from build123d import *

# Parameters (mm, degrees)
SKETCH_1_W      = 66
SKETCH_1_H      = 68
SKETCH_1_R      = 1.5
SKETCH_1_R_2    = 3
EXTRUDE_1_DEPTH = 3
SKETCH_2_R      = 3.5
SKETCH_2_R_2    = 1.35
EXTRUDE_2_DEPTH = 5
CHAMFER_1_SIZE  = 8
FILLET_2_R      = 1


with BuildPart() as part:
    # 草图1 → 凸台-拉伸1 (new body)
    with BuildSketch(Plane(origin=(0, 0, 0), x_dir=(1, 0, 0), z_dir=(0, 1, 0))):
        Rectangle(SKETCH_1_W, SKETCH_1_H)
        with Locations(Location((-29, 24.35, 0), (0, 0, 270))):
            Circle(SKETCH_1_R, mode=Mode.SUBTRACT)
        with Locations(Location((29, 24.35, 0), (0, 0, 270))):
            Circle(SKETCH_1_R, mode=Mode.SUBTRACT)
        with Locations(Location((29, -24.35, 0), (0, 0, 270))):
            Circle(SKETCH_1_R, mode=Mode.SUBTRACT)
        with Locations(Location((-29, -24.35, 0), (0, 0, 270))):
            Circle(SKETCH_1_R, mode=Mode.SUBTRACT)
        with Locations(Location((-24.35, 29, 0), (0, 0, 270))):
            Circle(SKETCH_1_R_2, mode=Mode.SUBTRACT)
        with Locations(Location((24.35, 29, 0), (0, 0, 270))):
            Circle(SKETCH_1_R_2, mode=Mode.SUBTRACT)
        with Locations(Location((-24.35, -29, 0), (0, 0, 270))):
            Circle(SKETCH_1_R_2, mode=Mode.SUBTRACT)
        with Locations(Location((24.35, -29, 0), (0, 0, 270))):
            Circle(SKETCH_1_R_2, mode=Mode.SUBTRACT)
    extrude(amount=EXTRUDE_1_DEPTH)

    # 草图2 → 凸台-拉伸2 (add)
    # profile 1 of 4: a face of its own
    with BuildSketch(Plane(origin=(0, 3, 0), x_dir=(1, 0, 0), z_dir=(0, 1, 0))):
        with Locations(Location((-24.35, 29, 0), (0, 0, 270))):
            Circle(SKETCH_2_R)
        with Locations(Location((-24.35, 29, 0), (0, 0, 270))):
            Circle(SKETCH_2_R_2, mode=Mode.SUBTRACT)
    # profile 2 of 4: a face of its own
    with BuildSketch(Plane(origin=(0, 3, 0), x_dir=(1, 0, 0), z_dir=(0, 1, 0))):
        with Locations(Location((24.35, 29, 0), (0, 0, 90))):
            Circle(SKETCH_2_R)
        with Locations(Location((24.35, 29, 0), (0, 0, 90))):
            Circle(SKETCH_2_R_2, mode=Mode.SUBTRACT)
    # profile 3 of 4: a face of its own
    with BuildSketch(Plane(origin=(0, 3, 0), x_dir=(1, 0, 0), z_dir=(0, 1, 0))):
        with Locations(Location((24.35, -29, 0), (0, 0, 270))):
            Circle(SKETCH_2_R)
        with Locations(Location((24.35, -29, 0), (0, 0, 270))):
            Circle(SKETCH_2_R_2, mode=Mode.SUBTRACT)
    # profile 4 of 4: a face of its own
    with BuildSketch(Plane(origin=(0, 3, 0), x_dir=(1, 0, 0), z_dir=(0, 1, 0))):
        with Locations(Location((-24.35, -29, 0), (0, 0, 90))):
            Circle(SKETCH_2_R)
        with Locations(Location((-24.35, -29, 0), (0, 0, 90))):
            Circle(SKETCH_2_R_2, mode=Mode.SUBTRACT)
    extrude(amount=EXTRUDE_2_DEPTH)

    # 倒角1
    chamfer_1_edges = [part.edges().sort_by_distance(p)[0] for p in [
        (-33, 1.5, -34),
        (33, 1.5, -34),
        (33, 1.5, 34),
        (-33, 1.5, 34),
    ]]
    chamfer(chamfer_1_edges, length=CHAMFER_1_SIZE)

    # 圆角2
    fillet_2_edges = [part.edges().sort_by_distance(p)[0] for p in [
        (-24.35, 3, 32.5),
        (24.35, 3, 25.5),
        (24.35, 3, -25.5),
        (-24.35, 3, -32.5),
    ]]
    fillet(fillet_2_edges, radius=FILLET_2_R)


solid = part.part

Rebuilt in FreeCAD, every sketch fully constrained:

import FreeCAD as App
import Part
import Sketcher
from FreeCAD import Vector


def edges_at(feature, points):
    """Names of the edges that pass closest to the given points."""
    edges = feature.Shape.Edges
    near = lambda p: min(range(len(edges)), key=lambda i: edges[i].distToShape(Part.Vertex(*p))[0])
    return sorted({f"Edge{near(p) + 1}" for p in points})

doc = App.newDocument("Part")
body = doc.addObject("PartDesign::Body", "Body")

sketch1 = body.newObject("Sketcher::SketchObject", "Sketch")
sketch1.AttachmentSupport = (doc.getObject("XZ_Plane"), [""])
sketch1.MapMode = "FlatFace"
sketch1.addGeometry(Part.LineSegment(Vector(-33, -34, 0), Vector(-33, 34, 0)), False)
sketch1.addGeometry(Part.LineSegment(Vector(-33, 34, 0), Vector(33, 34, 0)), False)
sketch1.addGeometry(Part.LineSegment(Vector(33, 34, 0), Vector(33, -34, 0)), False)
sketch1.addGeometry(Part.LineSegment(Vector(33, -34, 0), Vector(-33, -34, 0)), False)
sketch1.addGeometry(Part.Circle(Vector(-24.4, 29, 0), Vector(0, 0, 1), 3), False)
sketch1.addGeometry(Part.Circle(Vector(-29, 24.4, 0), Vector(0, 0, 1), 1.5), False)
sketch1.addGeometry(Part.Circle(Vector(24.4, 29, 0), Vector(0, 0, 1), 3), False)
sketch1.addGeometry(Part.Circle(Vector(29, 24.4, 0), Vector(0, 0, 1), 1.5), False)
sketch1.addGeometry(Part.Circle(Vector(-29, -24.4, 0), Vector(0, 0, 1), 1.5), False)
sketch1.addGeometry(Part.Circle(Vector(-24.4, -29, 0), Vector(0, 0, 1), 3), False)
sketch1.addGeometry(Part.Circle(Vector(29, -24.4, 0), Vector(0, 0, 1), 1.5), False)
sketch1.addGeometry(Part.Circle(Vector(24.4, -29, 0), Vector(0, 0, 1), 3), False)
sketch1.addConstraint(Sketcher.Constraint("Coincident", 0, 2, 1, 1))
sketch1.addConstraint(Sketcher.Constraint("Coincident", 1, 2, 2, 1))
sketch1.addConstraint(Sketcher.Constraint("Coincident", 2, 2, 3, 1))
sketch1.addConstraint(Sketcher.Constraint("Coincident", 3, 2, 0, 1))
sketch1.addConstraint(Sketcher.Constraint("Vertical", 0))
sketch1.addConstraint(Sketcher.Constraint("Horizontal", 1))
sketch1.addConstraint(Sketcher.Constraint("Vertical", 2))
sketch1.addConstraint(Sketcher.Constraint("Horizontal", 3))
sketch1.addConstraint(Sketcher.Constraint("Equal", 4, 6))
sketch1.addConstraint(Sketcher.Constraint("Equal", 5, 7))
sketch1.addConstraint(Sketcher.Constraint("Equal", 7, 8))
sketch1.addConstraint(Sketcher.Constraint("Equal", 6, 9))
sketch1.addConstraint(Sketcher.Constraint("Equal", 8, 10))
sketch1.addConstraint(Sketcher.Constraint("Equal", 9, 11))
sketch1.addConstraint(Sketcher.Constraint("Symmetric", 7, 3, 8, 3, -1, 1))
sketch1.addConstraint(Sketcher.Constraint("Symmetric", 6, 3, 9, 3, -1, 1))
sketch1.addConstraint(Sketcher.Constraint("Symmetric", 5, 3, 10, 3, -1, 1))
sketch1.addConstraint(Sketcher.Constraint("Symmetric", 4, 3, 11, 3, -1, 1))
sketch1.addConstraint(Sketcher.Constraint("Symmetric", 0, 2, 2, 2, -1, 1))
sketch1.addConstraint(Sketcher.Constraint("Symmetric", 4, 3, 6, 3, -2))
sketch1.addConstraint(Sketcher.Constraint("Symmetric", 5, 3, 7, 3, -2))
sketch1.addConstraint(Sketcher.Constraint("Diameter", 4, 6.0))
sketch1.addConstraint(Sketcher.Constraint("Diameter", 5, 3.0))
sketch1.addConstraint(Sketcher.Constraint("DistanceX", 1, 1, 1, 2, 66.0))
sketch1.addConstraint(Sketcher.Constraint("DistanceY", 0, 1, 0, 2, 68.0))
sketch1.addConstraint(Sketcher.Constraint("DistanceY", -1, 1, 4, 3, 29.0))
sketch1.addConstraint(Sketcher.Constraint("DistanceX", 5, 3, -1, 1, 29.0))
sketch1.addConstraint(Sketcher.Constraint("DistanceX", 4, 3, 6, 3, 48.7))
sketch1.addConstraint(Sketcher.Constraint("DistanceY", 8, 3, 5, 3, 48.7))
pad1 = body.newObject("PartDesign::Pad", "Pad")
pad1.Profile = sketch1
pad1.Length = 3
pad1.Reversed = True

sketch2 = body.newObject("Sketcher::SketchObject", "Sketch001")
sketch2.AttachmentSupport = (doc.getObject("XZ_Plane"), [""])
sketch2.MapMode = "FlatFace"
sketch2.AttachmentOffset = App.Placement(Vector(0, 0, -3), App.Rotation())
sketch2.addGeometry(Part.Circle(Vector(-24.4, -29, 0), Vector(0, 0, 1), 3.5), False)
sketch2.addGeometry(Part.Circle(Vector(-24.4, -29, 0), Vector(0, 0, 1), 1.4), False)
sketch2.addGeometry(Part.Circle(Vector(24.4, -29, 0), Vector(0, 0, 1), 3.5), False)
sketch2.addGeometry(Part.Circle(Vector(24.4, -29, 0), Vector(0, 0, 1), 1.4), False)
sketch2.addGeometry(Part.Circle(Vector(24.4, 29, 0), Vector(0, 0, 1), 3.5), False)
sketch2.addGeometry(Part.Circle(Vector(24.4, 29, 0), Vector(0, 0, 1), 1.4), False)
sketch2.addGeometry(Part.Circle(Vector(-24.4, 29, 0), Vector(0, 0, 1), 3.5), False)
sketch2.addGeometry(Part.Circle(Vector(-24.4, 29, 0), Vector(0, 0, 1), 1.4), False)
sketch2.addConstraint(Sketcher.Constraint("Coincident", 1, 3, 0, 3))
sketch2.addConstraint(Sketcher.Constraint("Coincident", 3, 3, 2, 3))
sketch2.addConstraint(Sketcher.Constraint("Coincident", 5, 3, 4, 3))
sketch2.addConstraint(Sketcher.Constraint("Coincident", 7, 3, 6, 3))
sketch2.addConstraint(Sketcher.Constraint("Equal", 0, 2))
sketch2.addConstraint(Sketcher.Constraint("Equal", 1, 3))
sketch2.addConstraint(Sketcher.Constraint("Equal", 2, 4))
sketch2.addConstraint(Sketcher.Constraint("Equal", 3, 5))
sketch2.addConstraint(Sketcher.Constraint("Equal", 4, 6))
sketch2.addConstraint(Sketcher.Constraint("Equal", 5, 7))
sketch2.addConstraint(Sketcher.Constraint("Symmetric", 0, 3, 4, 3, -1, 1))
sketch2.addConstraint(Sketcher.Constraint("Symmetric", 2, 3, 6, 3, -1, 1))
sketch2.addConstraint(Sketcher.Constraint("Symmetric", 0, 3, 2, 3, -2))
sketch2.addConstraint(Sketcher.Constraint("Diameter", 0, 7.0))
sketch2.addConstraint(Sketcher.Constraint("Diameter", 1, 2.7))
sketch2.addConstraint(Sketcher.Constraint("DistanceY", 0, 3, -1, 1, 29.0))
sketch2.addConstraint(Sketcher.Constraint("DistanceX", 0, 3, 2, 3, 48.7))
pad2 = body.newObject("PartDesign::Pad", "Pad001")
pad2.Profile = sketch2
pad2.Length = 5
pad2.Reversed = True
doc.recompute()

chamfer = body.newObject("PartDesign::Chamfer", "Chamfer")
chamfer.Base = (pad2, edges_at(pad2, [
    (-33, 1.5, -34),
    (33, 1.5, -34),
    (33, 1.5, 34),
    (-33, 1.5, 34),
]))
chamfer.Size = 8
doc.recompute()

fillet = body.newObject("PartDesign::Fillet", "Fillet")
fillet.Base = (chamfer, edges_at(chamfer, [
    (-24.35, 3, 32.5),
    (24.35, 3, 25.5),
    (24.35, 3, -25.5),
    (-24.35, 3, -32.5),
]))
fillet.Radius = 1

doc.recompute()
